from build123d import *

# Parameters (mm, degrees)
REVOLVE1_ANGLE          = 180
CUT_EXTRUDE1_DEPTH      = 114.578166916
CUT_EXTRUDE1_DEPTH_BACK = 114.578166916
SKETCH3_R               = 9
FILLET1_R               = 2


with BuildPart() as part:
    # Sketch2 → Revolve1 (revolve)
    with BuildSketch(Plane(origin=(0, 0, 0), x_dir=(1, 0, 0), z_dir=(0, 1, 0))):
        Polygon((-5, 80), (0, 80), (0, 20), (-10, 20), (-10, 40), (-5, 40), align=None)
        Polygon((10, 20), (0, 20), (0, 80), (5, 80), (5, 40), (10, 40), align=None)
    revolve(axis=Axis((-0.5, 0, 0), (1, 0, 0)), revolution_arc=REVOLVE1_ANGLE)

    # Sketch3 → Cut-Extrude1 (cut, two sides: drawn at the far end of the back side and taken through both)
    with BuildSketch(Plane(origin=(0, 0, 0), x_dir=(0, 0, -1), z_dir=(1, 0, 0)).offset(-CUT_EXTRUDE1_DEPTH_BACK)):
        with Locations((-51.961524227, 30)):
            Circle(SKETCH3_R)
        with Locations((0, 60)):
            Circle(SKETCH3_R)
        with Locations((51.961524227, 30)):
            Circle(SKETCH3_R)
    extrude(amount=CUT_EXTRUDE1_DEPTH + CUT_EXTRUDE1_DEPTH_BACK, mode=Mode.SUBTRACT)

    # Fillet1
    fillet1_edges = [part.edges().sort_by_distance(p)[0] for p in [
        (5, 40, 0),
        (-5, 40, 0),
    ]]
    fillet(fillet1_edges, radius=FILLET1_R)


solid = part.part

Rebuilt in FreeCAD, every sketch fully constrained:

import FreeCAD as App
import Part
import Sketcher
Q = App.Units.Quantity


def edges_at(feature, points):
    """Names of the edges that pass closest to the given points."""
    edges = feature.Shape.Edges
    near = lambda p: min(range(len(edges)), key=lambda i: edges[i].distToShape(Part.Vertex(*p))[0])
    return sorted({f"Edge{near(p) + 1}" for p in points})


def add_polygon(sketch, points):
    """Adds a closed chain of lines whose ends are joined by coincident constraints."""
    first, n = sketch.GeometryCount, len(points)
    for a, b in zip(points, points[1:] + points[:1]):
        sketch.addGeometry(Part.LineSegment(App.Vector(*a, 0), App.Vector(*b, 0)), False)
    for i in range(n):
        sketch.addConstraint(Sketcher.Constraint("Coincident", first + i, 2, first + (i + 1) % n, 1))

doc = App.newDocument("Part")
body = doc.addObject("PartDesign::Body", "Body")

# Sketch on XZ plane
sketch1 = doc.addObject("Sketcher::SketchObject", "Sketch")
body.addObject(sketch1)
sketch1.AttachmentSupport = (doc.XZ_Plane, [""])
sketch1.MapMode = "FlatFace"
add_polygon(sketch1, [(5, -80), (-5, -80), (-5, -40), (-10, -40), (-10, -20), (10, -20), (10, -40), (5, -40)])  # lines 0-7
sketch1.addConstraint([
    Sketcher.Constraint("Horizontal", 0),
    Sketcher.Constraint("Vertical", 1),
    Sketcher.Constraint("Horizontal", 2),
    Sketcher.Constraint("Vertical", 3),
    Sketcher.Constraint("Horizontal", 4),
    Sketcher.Constraint("Vertical", 5),
    Sketcher.Constraint("Horizontal", 6),
    Sketcher.Constraint("Vertical", 7),
    Sketcher.Constraint("Symmetric", 2, 2, 5, 2, -2),
    Sketcher.Constraint("Equal", 2, 6),
    Sketcher.Constraint("Equal", 4, 3),
    Sketcher.Constraint("DistanceX", 0, 2, 0, 1, Q("10 mm")),
    Sketcher.Constraint("DistanceX", 2, 2, 2, 1, Q("5 mm")),
    Sketcher.Constraint("DistanceY", 1, 1, 1, 2, Q("40 mm")),
    Sketcher.Constraint("DistanceY", 0, 2, -1, 1, Q("80 mm")),
])
revolution = doc.addObject("PartDesign::Revolution", "Revolution")
body.addObject(revolution)
revolution.Profile = sketch1
revolution.ReferenceAxis = (sketch1, ["H_Axis"])
revolution.Angle = 180

# Sketch on YZ plane
sketch2 = doc.addObject("Sketcher::SketchObject", "Sketch001")
body.addObject(sketch2)
sketch2.AttachmentSupport = (doc.YZ_Plane, [""])
sketch2.MapMode = "FlatFace"
sketch2.addGeometry([
    Part.Circle(App.Vector(30, 51.961524, 0), App.Vector(0, 0, 1), 9),
    Part.Circle(App.Vector(60, 0, 0), App.Vector(0, 0, 1), 9),
    Part.Circle(App.Vector(30, -51.961524, 0), App.Vector(0, 0, 1), 9),
], False)
sketch2.addConstraint([
    Sketcher.Constraint("Equal", 0, 1),
    Sketcher.Constraint("Equal", 1, 2),
    Sketcher.Constraint("Symmetric", 0, 3, 2, 3, -1),
    Sketcher.Constraint("PointOnObject", 1, 3, -1),
    Sketcher.Constraint("Diameter", 0, Q("18 mm")),
    Sketcher.Constraint("DistanceX", -1, 1, 0, 3, Q("30 mm")),
    Sketcher.Constraint("DistanceX", -1, 1, 1, 3, Q("60 mm")),
    Sketcher.Constraint("DistanceY", 2, 3, 0, 3, Q("103.923048 mm")),
])
pocket1 = doc.addObject("PartDesign::Pocket", "Pocket")
body.addObject(pocket1)
pocket1.Profile = sketch2
pocket1.Type = "ThroughAll"
pocket1.Midplane = True
doc.recompute()

fillet = doc.addObject("PartDesign::Fillet", "Fillet")
body.addObject(fillet)
fillet.Base = (pocket1, edges_at(pocket1, [(5, 40, 0), (-5, 40, 0)]))
fillet.Radius = 2

doc.recompute()
